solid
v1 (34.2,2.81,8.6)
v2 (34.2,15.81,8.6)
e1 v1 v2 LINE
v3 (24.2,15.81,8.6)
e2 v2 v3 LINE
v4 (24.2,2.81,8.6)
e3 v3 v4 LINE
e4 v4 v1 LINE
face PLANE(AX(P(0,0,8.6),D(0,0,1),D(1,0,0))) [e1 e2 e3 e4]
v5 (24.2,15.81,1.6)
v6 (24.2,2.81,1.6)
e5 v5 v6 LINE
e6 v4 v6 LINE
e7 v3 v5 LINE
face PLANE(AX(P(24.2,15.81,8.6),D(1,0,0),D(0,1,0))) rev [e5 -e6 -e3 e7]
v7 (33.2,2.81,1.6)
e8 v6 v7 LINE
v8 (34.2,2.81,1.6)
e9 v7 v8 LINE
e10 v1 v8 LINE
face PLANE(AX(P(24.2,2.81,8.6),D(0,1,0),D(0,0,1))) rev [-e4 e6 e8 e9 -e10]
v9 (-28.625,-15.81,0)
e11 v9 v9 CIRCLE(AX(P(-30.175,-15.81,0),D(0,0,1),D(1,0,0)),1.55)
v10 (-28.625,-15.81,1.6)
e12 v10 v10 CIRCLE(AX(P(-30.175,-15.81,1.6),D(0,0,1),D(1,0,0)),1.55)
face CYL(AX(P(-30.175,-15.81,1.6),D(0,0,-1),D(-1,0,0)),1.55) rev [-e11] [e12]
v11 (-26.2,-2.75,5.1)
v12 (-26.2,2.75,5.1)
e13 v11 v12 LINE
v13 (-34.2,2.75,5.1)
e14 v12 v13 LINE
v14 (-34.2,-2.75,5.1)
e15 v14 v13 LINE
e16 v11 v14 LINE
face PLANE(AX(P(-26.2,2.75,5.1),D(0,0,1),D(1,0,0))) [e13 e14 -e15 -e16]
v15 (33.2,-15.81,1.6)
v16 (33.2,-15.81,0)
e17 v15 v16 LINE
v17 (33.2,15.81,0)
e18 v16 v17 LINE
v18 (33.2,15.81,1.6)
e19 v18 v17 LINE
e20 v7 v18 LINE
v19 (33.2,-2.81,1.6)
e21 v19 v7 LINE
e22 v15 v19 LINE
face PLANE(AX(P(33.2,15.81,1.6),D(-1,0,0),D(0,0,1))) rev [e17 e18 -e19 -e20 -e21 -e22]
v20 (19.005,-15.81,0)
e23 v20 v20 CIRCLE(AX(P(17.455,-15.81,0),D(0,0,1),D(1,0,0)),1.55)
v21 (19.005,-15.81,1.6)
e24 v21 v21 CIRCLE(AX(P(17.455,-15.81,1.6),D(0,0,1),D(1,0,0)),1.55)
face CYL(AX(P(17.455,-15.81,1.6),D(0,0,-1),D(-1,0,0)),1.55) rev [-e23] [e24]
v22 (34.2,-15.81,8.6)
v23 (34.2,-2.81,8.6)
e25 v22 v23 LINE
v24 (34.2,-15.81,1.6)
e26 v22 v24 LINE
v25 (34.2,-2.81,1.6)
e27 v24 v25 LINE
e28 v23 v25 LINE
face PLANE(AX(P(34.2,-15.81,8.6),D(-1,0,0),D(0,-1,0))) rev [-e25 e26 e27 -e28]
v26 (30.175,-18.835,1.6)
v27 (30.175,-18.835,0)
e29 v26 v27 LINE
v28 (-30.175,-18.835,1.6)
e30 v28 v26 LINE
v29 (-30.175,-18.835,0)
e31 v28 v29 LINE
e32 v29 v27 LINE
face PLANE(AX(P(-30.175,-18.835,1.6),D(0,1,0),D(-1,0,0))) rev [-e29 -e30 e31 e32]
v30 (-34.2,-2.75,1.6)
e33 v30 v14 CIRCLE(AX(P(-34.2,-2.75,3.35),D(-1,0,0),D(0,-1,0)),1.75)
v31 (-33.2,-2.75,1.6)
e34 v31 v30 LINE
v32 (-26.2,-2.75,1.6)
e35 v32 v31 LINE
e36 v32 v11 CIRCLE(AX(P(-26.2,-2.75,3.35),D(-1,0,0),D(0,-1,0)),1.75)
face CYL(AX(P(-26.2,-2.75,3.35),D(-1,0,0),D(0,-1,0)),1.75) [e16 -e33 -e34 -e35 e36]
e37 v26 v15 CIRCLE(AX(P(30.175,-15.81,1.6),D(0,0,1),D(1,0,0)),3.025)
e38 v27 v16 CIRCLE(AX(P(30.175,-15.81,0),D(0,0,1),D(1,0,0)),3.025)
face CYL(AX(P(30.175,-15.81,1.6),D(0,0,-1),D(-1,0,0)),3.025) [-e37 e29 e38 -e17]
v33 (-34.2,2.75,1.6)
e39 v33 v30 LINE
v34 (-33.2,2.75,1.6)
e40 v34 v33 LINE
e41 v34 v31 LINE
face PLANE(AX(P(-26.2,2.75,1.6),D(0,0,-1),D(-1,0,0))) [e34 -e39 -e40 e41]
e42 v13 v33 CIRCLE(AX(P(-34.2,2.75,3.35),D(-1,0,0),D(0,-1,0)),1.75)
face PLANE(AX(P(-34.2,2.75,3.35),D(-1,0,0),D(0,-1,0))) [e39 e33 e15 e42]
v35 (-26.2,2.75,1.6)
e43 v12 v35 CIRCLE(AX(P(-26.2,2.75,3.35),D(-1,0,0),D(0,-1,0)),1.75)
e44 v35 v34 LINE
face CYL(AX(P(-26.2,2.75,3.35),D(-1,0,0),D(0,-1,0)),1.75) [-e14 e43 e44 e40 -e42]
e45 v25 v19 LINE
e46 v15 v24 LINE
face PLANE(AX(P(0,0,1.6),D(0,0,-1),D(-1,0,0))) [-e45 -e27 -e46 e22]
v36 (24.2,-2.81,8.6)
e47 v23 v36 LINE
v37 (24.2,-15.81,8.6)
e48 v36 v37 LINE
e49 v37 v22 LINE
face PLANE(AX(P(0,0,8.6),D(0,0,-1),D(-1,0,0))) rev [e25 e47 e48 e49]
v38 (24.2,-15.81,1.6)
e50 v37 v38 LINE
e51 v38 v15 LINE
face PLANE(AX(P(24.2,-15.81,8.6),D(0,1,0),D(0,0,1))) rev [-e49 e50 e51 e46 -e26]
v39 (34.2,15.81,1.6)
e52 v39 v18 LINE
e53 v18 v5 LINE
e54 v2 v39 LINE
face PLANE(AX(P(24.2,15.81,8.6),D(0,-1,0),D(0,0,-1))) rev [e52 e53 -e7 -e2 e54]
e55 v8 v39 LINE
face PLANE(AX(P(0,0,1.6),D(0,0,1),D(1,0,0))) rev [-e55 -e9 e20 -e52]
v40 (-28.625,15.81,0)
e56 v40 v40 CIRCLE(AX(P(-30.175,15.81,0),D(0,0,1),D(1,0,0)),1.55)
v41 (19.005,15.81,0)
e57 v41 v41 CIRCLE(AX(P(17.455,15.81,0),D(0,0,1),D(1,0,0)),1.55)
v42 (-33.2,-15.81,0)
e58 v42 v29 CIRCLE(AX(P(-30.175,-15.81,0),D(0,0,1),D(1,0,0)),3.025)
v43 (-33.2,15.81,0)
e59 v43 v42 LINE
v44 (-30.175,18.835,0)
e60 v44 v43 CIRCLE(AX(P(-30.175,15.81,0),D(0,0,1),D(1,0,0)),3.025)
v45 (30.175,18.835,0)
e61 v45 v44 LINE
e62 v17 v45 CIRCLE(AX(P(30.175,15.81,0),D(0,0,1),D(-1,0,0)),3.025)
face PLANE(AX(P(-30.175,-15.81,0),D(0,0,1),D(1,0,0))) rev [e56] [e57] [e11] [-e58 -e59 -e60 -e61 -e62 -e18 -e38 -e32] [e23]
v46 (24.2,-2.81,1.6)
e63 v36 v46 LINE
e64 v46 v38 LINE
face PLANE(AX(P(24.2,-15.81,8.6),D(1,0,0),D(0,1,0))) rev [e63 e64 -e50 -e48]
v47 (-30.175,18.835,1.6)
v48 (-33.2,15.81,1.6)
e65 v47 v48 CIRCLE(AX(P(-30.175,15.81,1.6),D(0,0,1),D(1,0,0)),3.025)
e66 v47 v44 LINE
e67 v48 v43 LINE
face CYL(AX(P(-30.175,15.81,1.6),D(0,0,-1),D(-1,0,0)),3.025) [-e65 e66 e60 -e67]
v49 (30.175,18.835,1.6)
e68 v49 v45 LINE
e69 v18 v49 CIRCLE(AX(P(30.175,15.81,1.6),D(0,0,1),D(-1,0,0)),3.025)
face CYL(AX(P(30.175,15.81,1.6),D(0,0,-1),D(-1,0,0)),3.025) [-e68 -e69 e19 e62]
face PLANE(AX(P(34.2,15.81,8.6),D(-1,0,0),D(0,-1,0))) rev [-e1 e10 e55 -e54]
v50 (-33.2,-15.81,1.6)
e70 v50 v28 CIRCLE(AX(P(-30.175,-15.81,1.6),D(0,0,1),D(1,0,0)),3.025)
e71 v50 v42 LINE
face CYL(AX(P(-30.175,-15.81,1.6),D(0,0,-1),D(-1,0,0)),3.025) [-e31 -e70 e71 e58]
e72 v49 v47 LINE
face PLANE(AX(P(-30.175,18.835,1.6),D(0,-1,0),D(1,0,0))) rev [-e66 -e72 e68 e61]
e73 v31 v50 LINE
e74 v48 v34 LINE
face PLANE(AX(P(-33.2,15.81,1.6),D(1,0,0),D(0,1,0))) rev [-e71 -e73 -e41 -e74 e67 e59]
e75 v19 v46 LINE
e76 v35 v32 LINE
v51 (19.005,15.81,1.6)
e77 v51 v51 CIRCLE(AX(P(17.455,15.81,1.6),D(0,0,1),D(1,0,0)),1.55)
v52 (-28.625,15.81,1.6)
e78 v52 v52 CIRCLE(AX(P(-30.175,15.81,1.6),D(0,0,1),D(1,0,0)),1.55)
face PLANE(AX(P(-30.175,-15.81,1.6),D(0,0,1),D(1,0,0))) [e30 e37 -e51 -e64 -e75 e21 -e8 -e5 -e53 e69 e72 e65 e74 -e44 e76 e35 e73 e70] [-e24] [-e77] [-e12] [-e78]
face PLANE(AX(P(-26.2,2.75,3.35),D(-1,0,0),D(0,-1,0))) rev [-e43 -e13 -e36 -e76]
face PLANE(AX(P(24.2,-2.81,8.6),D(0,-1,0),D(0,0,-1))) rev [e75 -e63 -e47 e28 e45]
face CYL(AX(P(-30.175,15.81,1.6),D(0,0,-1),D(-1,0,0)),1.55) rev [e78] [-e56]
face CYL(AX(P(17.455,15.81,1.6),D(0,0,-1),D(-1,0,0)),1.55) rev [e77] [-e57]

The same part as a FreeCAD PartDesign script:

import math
import FreeCAD as App
import Part
import Sketcher
from FreeCAD import Vector

doc = App.newDocument("Part")
body = doc.addObject("PartDesign::Body", "Body")

sketch1 = doc.addObject("Sketcher::SketchObject", "Sketch")
body.addObject(sketch1)
sketch1.AttachmentSupport = (doc.XY_Plane, [""])
sketch1.MapMode = "FlatFace"
sketch1.addGeometry([
    Part.LineSegment(Vector(30.2, 18.8, 0), Vector(-30.2, 18.8, 0)),
    Part.ArcOfCircle(Part.Circle(Vector(-30.2, 15.8, 0), Vector(0, 0, 1), 3), math.radians(90), math.radians(180)),
    Part.LineSegment(Vector(-33.2, 15.8, 0), Vector(-33.2, -15.8, 0)),
    Part.ArcOfCircle(Part.Circle(Vector(-30.2, -15.8, 0), Vector(0, 0, 1), 3), math.radians(180), math.radians(270)),
    Part.LineSegment(Vector(-30.2, -18.8, 0), Vector(30.2, -18.8, 0)),
    Part.ArcOfCircle(Part.Circle(Vector(30.2, -15.8, 0), Vector(0, 0, 1), 3), math.radians(-90), math.radians(0)),
    Part.LineSegment(Vector(33.2, -15.8, 0), Vector(33.2, 15.8, 0)),
    Part.ArcOfCircle(Part.Circle(Vector(30.2, 15.8, 0), Vector(0, 0, 1), 3), math.radians(0), math.radians(90)),
    Part.Circle(Vector(17.5, -15.8, 0), Vector(0, 0, 1), 1.6),
    Part.Circle(Vector(-30.2, -15.8, 0), Vector(0, 0, 1), 1.6),
    Part.Circle(Vector(17.5, 15.8, 0), Vector(0, 0, 1), 1.6),
    Part.Circle(Vector(-30.2, 15.8, 0), Vector(0, 0, 1), 1.6),
], False)
sketch1.addConstraint([
    Sketcher.Constraint("Tangent", 0, 2, 1, 1),
    Sketcher.Constraint("Tangent", 1, 2, 2, 1),
    Sketcher.Constraint("Tangent", 2, 2, 3, 1),
    Sketcher.Constraint("Tangent", 3, 2, 4, 1),
    Sketcher.Constraint("Tangent", 4, 2, 5, 1),
    Sketcher.Constraint("Tangent", 5, 2, 6, 1),
    Sketcher.Constraint("Tangent", 6, 2, 7, 1),
    Sketcher.Constraint("Tangent", 7, 2, 0, 1),
    Sketcher.Constraint("Horizontal", 0),
    Sketcher.Constraint("Vertical", 2),
    Sketcher.Constraint("Horizontal", 4),
    Sketcher.Constraint("Vertical", 6),
    Sketcher.Constraint("Coincident", 9, 3, 3, 3),
    Sketcher.Constraint("Coincident", 11, 3, 1, 3),
    Sketcher.Constraint("Equal", 1, 3),
    Sketcher.Constraint("Equal", 3, 5),
    Sketcher.Constraint("Equal", 5, 7),
    Sketcher.Constraint("Equal", 8, 9),
    Sketcher.Constraint("Equal", 9, 10),
    Sketcher.Constraint("Equal", 10, 11),
    Sketcher.Constraint("Symmetric", 1, 3, 5, 3, -1, 1),
    Sketcher.Constraint("Symmetric", 8, 3, 10, 3, -1),
    Sketcher.Constraint("Horizontal", 5, 3, 8, 3),
    Sketcher.Constraint("Diameter", 8, 3.1),
    Sketcher.Constraint("Radius", 1, 3.025),
    Sketcher.Constraint("DistanceX", 0, 2, 0, 1, 60.35),
    Sketcher.Constraint("DistanceY", 2, 2, 2, 1, 31.62),
    Sketcher.Constraint("DistanceX", 8, 3, 5, 3, 12.72),
])
pad1 = doc.addObject("PartDesign::Pad", "Pad")
body.addObject(pad1)
pad1.Profile = sketch1
pad1.Length = 1.6

sketch2 = doc.addObject("Sketcher::SketchObject", "Sketch001")
body.addObject(sketch2)
sketch2.AttachmentSupport = (doc.XY_Plane, [""])
sketch2.MapMode = "FlatFace"
sketch2.AttachmentOffset = App.Placement(Vector(0, 0, 1.6), App.Rotation())
sketch2.addGeometry([
    Part.LineSegment(Vector(24, 16, 0), Vector(24, 3, 0)),
    Part.LineSegment(Vector(24, 3, 0), Vector(34, 3, 0)),
    Part.LineSegment(Vector(34, 3, 0), Vector(34, 16, 0)),
    Part.LineSegment(Vector(34, 16, 0), Vector(24, 16, 0)),
    Part.LineSegment(Vector(24, -3, 0), Vector(24, -16, 0)),
    Part.LineSegment(Vector(24, -16, 0), Vector(34, -16, 0)),
    Part.LineSegment(Vector(34, -16, 0), Vector(34, -3, 0)),
    Part.LineSegment(Vector(34, -3, 0), Vector(24, -3, 0)),
], False)
sketch2.addConstraint([
    Sketcher.Constraint("Coincident", 0, 2, 1, 1),
    Sketcher.Constraint("Coincident", 1, 2, 2, 1),
    Sketcher.Constraint("Coincident", 2, 2, 3, 1),
    Sketcher.Constraint("Coincident", 3, 2, 0, 1),
    Sketcher.Constraint("Coincident", 4, 2, 5, 1),
    Sketcher.Constraint("Coincident", 5, 2, 6, 1),
    Sketcher.Constraint("Coincident", 6, 2, 7, 1),
    Sketcher.Constraint("Coincident", 7, 2, 4, 1),
    Sketcher.Constraint("Vertical", 0),
    Sketcher.Constraint("Horizontal", 1),
    Sketcher.Constraint("Vertical", 2),
    Sketcher.Constraint("Horizontal", 3),
    Sketcher.Constraint("Vertical", 4),
    Sketcher.Constraint("Horizontal", 5),
    Sketcher.Constraint("Vertical", 6),
    Sketcher.Constraint("Horizontal", 7),
    Sketcher.Constraint("Symmetric", 3, 2, 4, 2, -1),
    Sketcher.Constraint("Symmetric", 1, 2, 6, 2, -1),
    Sketcher.Constraint("DistanceX", 1, 1, 1, 2, 10.0),
    Sketcher.Constraint("DistanceY", 0, 2, 0, 1, 13.0),
    Sketcher.Constraint("DistanceX", -1, 1, 0, 2, 24.2),
    Sketcher.Constraint("DistanceY", -1, 1, 0, 2, 2.81),
])
pad2 = doc.addObject("PartDesign::Pad", "Pad001")
body.addObject(pad2)
pad2.Profile = sketch2
pad2.Length = 7

sketch3 = doc.addObject("Sketcher::SketchObject", "Sketch002")
body.addObject(sketch3)
sketch3.AttachmentSupport = (doc.YZ_Plane, [""])
sketch3.MapMode = "FlatFace"
sketch3.AttachmentOffset = App.Placement(Vector(0, 0, -33.2), App.Rotation())
sketch3.addGeometry([
    Part.LineSegment(Vector(-2.8, 5.1, 0), Vector(2.8, 5.1, 0)),
    Part.ArcOfCircle(Part.Circle(Vector(2.8, 3.4, 0), Vector(0, 0, 1), 1.8), math.radians(-90), math.radians(90)),
    Part.LineSegment(Vector(2.8, 1.6, 0), Vector(-2.8, 1.6, 0)),
    Part.ArcOfCircle(Part.Circle(Vector(-2.8, 3.4, 0), Vector(0, 0, 1), 1.8), math.radians(90), math.radians(270)),
], False)
sketch3.addConstraint([
    Sketcher.Constraint("Tangent", 0, 2, 1, 2),
    Sketcher.Constraint("Tangent", 1, 1, 2, 1),
    Sketcher.Constraint("Tangent", 2, 2, 3, 2),
    Sketcher.Constraint("Tangent", 3, 1, 0, 1),
    Sketcher.Constraint("Horizontal", 0),
    Sketcher.Constraint("Horizontal", 2),
    Sketcher.Constraint("Radius", 1, 1.75),
    Sketcher.Constraint("DistanceX", 0, 1, 0, 2, 5.5),
    Sketcher.Constraint("DistanceY", -1, 1, 0, 2, 5.1),
    Sketcher.Constraint("DistanceX", -1, 1, 1, 3, 2.75),
])
pad3 = doc.addObject("PartDesign::Pad", "Pad002")
body.addObject(pad3)
pad3.Profile = sketch3
pad3.Type = "TwoLengths"
pad3.Length = 1
pad3.Length2 = 7
pad3.Reversed = True

doc.recompute()
